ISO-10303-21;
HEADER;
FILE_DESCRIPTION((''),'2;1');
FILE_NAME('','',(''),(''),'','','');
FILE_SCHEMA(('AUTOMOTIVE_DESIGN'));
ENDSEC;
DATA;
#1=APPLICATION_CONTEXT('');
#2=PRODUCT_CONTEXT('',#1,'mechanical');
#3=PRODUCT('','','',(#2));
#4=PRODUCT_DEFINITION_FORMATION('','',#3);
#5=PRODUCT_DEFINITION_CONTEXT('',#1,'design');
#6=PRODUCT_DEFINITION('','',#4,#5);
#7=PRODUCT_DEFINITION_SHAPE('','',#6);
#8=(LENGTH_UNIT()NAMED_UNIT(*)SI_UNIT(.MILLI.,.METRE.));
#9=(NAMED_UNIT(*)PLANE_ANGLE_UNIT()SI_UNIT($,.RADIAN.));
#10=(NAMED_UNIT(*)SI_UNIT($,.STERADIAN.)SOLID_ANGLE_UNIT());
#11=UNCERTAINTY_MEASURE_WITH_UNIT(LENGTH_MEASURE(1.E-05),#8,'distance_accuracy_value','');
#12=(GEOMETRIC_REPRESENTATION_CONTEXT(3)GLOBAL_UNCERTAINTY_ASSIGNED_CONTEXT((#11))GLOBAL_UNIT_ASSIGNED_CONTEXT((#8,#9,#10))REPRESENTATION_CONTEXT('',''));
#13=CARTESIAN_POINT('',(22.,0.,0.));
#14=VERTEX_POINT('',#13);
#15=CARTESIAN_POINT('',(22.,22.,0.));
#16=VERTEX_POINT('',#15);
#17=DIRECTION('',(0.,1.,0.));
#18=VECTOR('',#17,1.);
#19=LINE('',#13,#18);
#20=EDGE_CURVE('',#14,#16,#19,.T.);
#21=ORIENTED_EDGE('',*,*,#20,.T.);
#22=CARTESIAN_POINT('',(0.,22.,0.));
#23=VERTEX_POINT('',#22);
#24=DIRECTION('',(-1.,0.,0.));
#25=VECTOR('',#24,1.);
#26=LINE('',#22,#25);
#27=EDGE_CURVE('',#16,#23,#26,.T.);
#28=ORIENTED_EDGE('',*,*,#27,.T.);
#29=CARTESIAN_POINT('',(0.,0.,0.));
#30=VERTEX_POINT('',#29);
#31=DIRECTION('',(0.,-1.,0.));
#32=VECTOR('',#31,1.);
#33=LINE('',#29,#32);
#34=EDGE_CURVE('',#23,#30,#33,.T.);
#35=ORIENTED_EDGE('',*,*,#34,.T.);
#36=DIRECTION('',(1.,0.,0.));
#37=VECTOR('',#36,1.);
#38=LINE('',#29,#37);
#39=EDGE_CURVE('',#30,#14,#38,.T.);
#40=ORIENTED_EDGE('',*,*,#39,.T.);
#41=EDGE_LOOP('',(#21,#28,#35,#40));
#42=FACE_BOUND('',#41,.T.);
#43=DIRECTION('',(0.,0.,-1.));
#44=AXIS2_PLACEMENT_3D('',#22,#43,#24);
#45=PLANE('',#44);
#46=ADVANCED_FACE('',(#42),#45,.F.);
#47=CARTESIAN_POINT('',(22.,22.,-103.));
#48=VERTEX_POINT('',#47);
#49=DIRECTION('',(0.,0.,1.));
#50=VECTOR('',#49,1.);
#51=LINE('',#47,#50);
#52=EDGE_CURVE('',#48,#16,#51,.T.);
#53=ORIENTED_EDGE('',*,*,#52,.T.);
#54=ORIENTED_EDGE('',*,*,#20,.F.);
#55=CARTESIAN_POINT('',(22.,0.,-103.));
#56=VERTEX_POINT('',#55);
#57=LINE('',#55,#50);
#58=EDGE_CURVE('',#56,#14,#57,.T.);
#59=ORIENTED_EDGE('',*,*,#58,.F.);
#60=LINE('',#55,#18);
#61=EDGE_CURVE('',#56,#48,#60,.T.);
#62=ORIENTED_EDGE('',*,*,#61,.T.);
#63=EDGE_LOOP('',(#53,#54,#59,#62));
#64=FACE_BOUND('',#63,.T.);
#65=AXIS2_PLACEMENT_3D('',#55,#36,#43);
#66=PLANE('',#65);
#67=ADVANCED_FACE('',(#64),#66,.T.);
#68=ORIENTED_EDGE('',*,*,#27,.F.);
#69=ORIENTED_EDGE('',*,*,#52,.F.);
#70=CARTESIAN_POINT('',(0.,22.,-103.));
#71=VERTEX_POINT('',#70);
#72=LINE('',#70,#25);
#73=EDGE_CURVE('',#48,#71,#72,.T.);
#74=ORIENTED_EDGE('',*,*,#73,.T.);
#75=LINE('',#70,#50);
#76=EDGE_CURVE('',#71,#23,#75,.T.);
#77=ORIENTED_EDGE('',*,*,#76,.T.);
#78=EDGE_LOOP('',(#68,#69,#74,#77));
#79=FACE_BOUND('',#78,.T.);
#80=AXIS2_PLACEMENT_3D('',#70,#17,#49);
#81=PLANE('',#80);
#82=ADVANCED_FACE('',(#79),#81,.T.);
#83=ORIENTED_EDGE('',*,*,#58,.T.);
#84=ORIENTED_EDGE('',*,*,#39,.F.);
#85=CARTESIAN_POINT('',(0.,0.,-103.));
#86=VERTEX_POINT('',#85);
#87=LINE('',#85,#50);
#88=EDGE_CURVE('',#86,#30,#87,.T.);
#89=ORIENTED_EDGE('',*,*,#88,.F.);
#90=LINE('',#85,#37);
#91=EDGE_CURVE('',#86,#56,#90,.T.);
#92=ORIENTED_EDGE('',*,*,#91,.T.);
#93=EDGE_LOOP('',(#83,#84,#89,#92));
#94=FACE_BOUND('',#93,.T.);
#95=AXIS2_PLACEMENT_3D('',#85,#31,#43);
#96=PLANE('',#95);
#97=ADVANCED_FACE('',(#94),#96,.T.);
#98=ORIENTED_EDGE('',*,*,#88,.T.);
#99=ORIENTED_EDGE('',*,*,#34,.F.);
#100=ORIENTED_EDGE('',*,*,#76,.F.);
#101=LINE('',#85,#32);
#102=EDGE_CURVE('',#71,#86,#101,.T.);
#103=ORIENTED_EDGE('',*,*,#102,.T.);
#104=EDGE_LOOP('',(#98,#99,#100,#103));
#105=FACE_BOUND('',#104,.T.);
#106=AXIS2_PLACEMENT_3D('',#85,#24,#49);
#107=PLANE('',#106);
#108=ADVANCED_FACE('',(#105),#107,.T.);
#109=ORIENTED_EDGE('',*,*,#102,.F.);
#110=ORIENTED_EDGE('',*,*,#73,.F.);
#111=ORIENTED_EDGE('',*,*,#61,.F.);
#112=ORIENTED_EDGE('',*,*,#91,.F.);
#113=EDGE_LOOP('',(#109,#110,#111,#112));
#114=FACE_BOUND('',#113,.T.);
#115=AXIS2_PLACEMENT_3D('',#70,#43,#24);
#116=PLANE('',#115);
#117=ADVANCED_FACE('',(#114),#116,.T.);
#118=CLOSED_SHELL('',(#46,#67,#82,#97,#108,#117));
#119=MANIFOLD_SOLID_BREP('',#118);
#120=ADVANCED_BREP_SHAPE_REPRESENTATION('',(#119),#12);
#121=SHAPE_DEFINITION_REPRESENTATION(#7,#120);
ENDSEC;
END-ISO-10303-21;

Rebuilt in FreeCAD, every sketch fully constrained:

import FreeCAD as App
import Part
import Sketcher


def add_polygon(sketch, points):
    """Adds a closed chain of lines whose ends are joined by coincident constraints."""
    first, n = sketch.GeometryCount, len(points)
    for a, b in zip(points, points[1:] + points[:1]):
        sketch.addGeometry(Part.LineSegment(App.Vector(*a, 0), App.Vector(*b, 0)), False)
    for i in range(n):
        sketch.addConstraint(Sketcher.Constraint("Coincident", first + i, 2, first + (i + 1) % n, 1))

doc = App.newDocument("Part")
body = doc.addObject("PartDesign::Body", "Body")

# Sketch on XY plane
sketch1 = body.newObject("Sketcher::SketchObject", "Sketch")
sketch1.AttachmentSupport = (doc.getObject("XY_Plane"), [""])
sketch1.MapMode = "FlatFace"
add_polygon(sketch1, [(0, 22), (0, 0), (22, 0), (22, 22)])  # lines 0-3
sketch1.addConstraint([
    Sketcher.Constraint("Vertical", 0),
    Sketcher.Constraint("Horizontal", 1),
    Sketcher.Constraint("Vertical", 2),
    Sketcher.Constraint("Horizontal", 3),
    Sketcher.Constraint("Coincident", 0, 2, -1, 1),
    Sketcher.Constraint("Equal", 3, 0),
    Sketcher.Constraint("DistanceX", 1, 1, 1, 2, 22.0),
])
pad1 = body.newObject("PartDesign::Pad", "Pad")
pad1.Profile = sketch1
pad1.Length = 103
pad1.Reversed = True

doc.recompute()
